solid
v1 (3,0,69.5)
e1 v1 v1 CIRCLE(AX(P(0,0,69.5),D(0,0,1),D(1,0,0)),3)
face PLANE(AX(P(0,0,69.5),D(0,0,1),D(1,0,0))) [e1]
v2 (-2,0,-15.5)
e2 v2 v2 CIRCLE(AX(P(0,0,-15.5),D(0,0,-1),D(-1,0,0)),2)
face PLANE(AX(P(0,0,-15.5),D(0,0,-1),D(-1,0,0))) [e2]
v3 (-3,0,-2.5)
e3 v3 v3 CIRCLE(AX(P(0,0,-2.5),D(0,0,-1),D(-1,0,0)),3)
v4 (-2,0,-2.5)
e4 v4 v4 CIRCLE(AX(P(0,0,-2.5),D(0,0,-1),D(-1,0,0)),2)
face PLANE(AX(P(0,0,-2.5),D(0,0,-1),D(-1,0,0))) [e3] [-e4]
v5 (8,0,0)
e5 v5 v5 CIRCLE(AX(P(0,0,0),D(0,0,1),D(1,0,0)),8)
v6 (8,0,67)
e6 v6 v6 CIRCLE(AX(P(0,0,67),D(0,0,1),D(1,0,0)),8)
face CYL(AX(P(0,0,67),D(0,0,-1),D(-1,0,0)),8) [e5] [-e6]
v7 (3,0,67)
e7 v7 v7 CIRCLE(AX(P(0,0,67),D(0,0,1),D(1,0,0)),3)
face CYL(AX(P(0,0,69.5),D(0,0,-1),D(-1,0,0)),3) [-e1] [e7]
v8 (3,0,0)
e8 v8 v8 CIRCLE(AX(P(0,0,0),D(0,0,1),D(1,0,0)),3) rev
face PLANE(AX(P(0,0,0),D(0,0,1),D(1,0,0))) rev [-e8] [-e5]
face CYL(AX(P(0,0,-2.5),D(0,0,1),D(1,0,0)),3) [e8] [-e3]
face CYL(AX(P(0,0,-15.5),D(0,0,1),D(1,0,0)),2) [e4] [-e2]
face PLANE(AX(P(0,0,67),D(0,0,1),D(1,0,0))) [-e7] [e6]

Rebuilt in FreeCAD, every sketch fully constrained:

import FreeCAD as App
import Part
import Sketcher
Q = App.Units.Quantity

doc = App.newDocument("Part")
params = doc.addObject("Spreadsheet::Sheet", "Params")
for row, (alias, value) in enumerate([
    ("sketch1_diameter", "16 mm"),
    ("pad1_length", "67 mm"),
    ("sketch2_diameter", "6 mm"),
    ("pad2_length", "2.5 mm"),
    ("sketch3_diameter", "6 mm"),
    ("pad3_length", "2.5 mm"),
    ("sketch4_diameter", "4 mm"),
    ("pad4_length", "13 mm"),
], start=1):
    params.set(f"A{row}", alias)
    params.set(f"B{row}", "=" + value)
    params.setAlias(f"B{row}", alias)

body = doc.addObject("PartDesign::Body", "Body")

sketch1 = body.newObject("Sketcher::SketchObject", "Sketch")
sketch1.AttachmentSupport = (doc.getObject("XY_Plane"), [""])
sketch1.MapMode = "FlatFace"
sketch1.addGeometry(Part.Circle(App.Vector(0, 0, 0), App.Vector(0, 0, 1), 8), False)
sketch1.addConstraint(Sketcher.Constraint("Coincident", 0, 3, -1, 1))
sketch1.addConstraint(Sketcher.Constraint("Diameter", 0, Q("16 mm")))
sketch1.setExpression("Constraints[1]", "Params.sketch1_diameter")
pad1 = body.newObject("PartDesign::Pad", "Pad")
pad1.Profile = sketch1
pad1.setExpression("Length", "Params.pad1_length")

sketch2 = body.newObject("Sketcher::SketchObject", "Sketch001")
sketch2.AttachmentSupport = (doc.getObject("XY_Plane"), [""])
sketch2.MapMode = "FlatFace"
sketch2.AttachmentOffset = App.Placement(App.Vector(0, 0, 67), App.Rotation())
sketch2.addGeometry(Part.Circle(App.Vector(0, 0, 0), App.Vector(0, 0, 1), 3), False)
sketch2.addConstraint(Sketcher.Constraint("Coincident", 0, 3, -1, 1))
sketch2.addConstraint(Sketcher.Constraint("Diameter", 0, Q("6 mm")))
sketch2.setExpression("Constraints[1]", "Params.sketch2_diameter")
pad2 = body.newObject("PartDesign::Pad", "Pad001")
pad2.Profile = sketch2
pad2.setExpression("Length", "Params.pad2_length")

sketch3 = body.newObject("Sketcher::SketchObject", "Sketch002")
sketch3.AttachmentSupport = (doc.getObject("XY_Plane"), [""])
sketch3.MapMode = "FlatFace"
sketch3.addGeometry(Part.Circle(App.Vector(0, 0, 0), App.Vector(0, 0, 1), 3), False)
sketch3.addConstraint(Sketcher.Constraint("Coincident", 0, 3, -1, 1))
sketch3.addConstraint(Sketcher.Constraint("Diameter", 0, Q("6 mm")))
sketch3.setExpression("Constraints[1]", "Params.sketch3_diameter")
pad3 = body.newObject("PartDesign::Pad", "Pad002")
pad3.Profile = sketch3
pad3.setExpression("Length", "Params.pad3_length")
pad3.Reversed = True

sketch4 = body.newObject("Sketcher::SketchObject", "Sketch003")
sketch4.AttachmentSupport = (doc.getObject("XY_Plane"), [""])
sketch4.MapMode = "FlatFace"
sketch4.AttachmentOffset = App.Placement(App.Vector(0, 0, -2.5), App.Rotation())
sketch4.addGeometry(Part.Circle(App.Vector(0, 0, 0), App.Vector(0, 0, 1), 2), False)
sketch4.addConstraint(Sketcher.Constraint("Coincident", 0, 3, -1, 1))
sketch4.addConstraint(Sketcher.Constraint("Diameter", 0, Q("4 mm")))
sketch4.setExpression("Constraints[1]", "Params.sketch4_diameter")
pad4 = body.newObject("PartDesign::Pad", "Pad003")
pad4.Profile = sketch4
pad4.setExpression("Length", "Params.pad4_length")
pad4.Reversed = True

doc.recompute()
